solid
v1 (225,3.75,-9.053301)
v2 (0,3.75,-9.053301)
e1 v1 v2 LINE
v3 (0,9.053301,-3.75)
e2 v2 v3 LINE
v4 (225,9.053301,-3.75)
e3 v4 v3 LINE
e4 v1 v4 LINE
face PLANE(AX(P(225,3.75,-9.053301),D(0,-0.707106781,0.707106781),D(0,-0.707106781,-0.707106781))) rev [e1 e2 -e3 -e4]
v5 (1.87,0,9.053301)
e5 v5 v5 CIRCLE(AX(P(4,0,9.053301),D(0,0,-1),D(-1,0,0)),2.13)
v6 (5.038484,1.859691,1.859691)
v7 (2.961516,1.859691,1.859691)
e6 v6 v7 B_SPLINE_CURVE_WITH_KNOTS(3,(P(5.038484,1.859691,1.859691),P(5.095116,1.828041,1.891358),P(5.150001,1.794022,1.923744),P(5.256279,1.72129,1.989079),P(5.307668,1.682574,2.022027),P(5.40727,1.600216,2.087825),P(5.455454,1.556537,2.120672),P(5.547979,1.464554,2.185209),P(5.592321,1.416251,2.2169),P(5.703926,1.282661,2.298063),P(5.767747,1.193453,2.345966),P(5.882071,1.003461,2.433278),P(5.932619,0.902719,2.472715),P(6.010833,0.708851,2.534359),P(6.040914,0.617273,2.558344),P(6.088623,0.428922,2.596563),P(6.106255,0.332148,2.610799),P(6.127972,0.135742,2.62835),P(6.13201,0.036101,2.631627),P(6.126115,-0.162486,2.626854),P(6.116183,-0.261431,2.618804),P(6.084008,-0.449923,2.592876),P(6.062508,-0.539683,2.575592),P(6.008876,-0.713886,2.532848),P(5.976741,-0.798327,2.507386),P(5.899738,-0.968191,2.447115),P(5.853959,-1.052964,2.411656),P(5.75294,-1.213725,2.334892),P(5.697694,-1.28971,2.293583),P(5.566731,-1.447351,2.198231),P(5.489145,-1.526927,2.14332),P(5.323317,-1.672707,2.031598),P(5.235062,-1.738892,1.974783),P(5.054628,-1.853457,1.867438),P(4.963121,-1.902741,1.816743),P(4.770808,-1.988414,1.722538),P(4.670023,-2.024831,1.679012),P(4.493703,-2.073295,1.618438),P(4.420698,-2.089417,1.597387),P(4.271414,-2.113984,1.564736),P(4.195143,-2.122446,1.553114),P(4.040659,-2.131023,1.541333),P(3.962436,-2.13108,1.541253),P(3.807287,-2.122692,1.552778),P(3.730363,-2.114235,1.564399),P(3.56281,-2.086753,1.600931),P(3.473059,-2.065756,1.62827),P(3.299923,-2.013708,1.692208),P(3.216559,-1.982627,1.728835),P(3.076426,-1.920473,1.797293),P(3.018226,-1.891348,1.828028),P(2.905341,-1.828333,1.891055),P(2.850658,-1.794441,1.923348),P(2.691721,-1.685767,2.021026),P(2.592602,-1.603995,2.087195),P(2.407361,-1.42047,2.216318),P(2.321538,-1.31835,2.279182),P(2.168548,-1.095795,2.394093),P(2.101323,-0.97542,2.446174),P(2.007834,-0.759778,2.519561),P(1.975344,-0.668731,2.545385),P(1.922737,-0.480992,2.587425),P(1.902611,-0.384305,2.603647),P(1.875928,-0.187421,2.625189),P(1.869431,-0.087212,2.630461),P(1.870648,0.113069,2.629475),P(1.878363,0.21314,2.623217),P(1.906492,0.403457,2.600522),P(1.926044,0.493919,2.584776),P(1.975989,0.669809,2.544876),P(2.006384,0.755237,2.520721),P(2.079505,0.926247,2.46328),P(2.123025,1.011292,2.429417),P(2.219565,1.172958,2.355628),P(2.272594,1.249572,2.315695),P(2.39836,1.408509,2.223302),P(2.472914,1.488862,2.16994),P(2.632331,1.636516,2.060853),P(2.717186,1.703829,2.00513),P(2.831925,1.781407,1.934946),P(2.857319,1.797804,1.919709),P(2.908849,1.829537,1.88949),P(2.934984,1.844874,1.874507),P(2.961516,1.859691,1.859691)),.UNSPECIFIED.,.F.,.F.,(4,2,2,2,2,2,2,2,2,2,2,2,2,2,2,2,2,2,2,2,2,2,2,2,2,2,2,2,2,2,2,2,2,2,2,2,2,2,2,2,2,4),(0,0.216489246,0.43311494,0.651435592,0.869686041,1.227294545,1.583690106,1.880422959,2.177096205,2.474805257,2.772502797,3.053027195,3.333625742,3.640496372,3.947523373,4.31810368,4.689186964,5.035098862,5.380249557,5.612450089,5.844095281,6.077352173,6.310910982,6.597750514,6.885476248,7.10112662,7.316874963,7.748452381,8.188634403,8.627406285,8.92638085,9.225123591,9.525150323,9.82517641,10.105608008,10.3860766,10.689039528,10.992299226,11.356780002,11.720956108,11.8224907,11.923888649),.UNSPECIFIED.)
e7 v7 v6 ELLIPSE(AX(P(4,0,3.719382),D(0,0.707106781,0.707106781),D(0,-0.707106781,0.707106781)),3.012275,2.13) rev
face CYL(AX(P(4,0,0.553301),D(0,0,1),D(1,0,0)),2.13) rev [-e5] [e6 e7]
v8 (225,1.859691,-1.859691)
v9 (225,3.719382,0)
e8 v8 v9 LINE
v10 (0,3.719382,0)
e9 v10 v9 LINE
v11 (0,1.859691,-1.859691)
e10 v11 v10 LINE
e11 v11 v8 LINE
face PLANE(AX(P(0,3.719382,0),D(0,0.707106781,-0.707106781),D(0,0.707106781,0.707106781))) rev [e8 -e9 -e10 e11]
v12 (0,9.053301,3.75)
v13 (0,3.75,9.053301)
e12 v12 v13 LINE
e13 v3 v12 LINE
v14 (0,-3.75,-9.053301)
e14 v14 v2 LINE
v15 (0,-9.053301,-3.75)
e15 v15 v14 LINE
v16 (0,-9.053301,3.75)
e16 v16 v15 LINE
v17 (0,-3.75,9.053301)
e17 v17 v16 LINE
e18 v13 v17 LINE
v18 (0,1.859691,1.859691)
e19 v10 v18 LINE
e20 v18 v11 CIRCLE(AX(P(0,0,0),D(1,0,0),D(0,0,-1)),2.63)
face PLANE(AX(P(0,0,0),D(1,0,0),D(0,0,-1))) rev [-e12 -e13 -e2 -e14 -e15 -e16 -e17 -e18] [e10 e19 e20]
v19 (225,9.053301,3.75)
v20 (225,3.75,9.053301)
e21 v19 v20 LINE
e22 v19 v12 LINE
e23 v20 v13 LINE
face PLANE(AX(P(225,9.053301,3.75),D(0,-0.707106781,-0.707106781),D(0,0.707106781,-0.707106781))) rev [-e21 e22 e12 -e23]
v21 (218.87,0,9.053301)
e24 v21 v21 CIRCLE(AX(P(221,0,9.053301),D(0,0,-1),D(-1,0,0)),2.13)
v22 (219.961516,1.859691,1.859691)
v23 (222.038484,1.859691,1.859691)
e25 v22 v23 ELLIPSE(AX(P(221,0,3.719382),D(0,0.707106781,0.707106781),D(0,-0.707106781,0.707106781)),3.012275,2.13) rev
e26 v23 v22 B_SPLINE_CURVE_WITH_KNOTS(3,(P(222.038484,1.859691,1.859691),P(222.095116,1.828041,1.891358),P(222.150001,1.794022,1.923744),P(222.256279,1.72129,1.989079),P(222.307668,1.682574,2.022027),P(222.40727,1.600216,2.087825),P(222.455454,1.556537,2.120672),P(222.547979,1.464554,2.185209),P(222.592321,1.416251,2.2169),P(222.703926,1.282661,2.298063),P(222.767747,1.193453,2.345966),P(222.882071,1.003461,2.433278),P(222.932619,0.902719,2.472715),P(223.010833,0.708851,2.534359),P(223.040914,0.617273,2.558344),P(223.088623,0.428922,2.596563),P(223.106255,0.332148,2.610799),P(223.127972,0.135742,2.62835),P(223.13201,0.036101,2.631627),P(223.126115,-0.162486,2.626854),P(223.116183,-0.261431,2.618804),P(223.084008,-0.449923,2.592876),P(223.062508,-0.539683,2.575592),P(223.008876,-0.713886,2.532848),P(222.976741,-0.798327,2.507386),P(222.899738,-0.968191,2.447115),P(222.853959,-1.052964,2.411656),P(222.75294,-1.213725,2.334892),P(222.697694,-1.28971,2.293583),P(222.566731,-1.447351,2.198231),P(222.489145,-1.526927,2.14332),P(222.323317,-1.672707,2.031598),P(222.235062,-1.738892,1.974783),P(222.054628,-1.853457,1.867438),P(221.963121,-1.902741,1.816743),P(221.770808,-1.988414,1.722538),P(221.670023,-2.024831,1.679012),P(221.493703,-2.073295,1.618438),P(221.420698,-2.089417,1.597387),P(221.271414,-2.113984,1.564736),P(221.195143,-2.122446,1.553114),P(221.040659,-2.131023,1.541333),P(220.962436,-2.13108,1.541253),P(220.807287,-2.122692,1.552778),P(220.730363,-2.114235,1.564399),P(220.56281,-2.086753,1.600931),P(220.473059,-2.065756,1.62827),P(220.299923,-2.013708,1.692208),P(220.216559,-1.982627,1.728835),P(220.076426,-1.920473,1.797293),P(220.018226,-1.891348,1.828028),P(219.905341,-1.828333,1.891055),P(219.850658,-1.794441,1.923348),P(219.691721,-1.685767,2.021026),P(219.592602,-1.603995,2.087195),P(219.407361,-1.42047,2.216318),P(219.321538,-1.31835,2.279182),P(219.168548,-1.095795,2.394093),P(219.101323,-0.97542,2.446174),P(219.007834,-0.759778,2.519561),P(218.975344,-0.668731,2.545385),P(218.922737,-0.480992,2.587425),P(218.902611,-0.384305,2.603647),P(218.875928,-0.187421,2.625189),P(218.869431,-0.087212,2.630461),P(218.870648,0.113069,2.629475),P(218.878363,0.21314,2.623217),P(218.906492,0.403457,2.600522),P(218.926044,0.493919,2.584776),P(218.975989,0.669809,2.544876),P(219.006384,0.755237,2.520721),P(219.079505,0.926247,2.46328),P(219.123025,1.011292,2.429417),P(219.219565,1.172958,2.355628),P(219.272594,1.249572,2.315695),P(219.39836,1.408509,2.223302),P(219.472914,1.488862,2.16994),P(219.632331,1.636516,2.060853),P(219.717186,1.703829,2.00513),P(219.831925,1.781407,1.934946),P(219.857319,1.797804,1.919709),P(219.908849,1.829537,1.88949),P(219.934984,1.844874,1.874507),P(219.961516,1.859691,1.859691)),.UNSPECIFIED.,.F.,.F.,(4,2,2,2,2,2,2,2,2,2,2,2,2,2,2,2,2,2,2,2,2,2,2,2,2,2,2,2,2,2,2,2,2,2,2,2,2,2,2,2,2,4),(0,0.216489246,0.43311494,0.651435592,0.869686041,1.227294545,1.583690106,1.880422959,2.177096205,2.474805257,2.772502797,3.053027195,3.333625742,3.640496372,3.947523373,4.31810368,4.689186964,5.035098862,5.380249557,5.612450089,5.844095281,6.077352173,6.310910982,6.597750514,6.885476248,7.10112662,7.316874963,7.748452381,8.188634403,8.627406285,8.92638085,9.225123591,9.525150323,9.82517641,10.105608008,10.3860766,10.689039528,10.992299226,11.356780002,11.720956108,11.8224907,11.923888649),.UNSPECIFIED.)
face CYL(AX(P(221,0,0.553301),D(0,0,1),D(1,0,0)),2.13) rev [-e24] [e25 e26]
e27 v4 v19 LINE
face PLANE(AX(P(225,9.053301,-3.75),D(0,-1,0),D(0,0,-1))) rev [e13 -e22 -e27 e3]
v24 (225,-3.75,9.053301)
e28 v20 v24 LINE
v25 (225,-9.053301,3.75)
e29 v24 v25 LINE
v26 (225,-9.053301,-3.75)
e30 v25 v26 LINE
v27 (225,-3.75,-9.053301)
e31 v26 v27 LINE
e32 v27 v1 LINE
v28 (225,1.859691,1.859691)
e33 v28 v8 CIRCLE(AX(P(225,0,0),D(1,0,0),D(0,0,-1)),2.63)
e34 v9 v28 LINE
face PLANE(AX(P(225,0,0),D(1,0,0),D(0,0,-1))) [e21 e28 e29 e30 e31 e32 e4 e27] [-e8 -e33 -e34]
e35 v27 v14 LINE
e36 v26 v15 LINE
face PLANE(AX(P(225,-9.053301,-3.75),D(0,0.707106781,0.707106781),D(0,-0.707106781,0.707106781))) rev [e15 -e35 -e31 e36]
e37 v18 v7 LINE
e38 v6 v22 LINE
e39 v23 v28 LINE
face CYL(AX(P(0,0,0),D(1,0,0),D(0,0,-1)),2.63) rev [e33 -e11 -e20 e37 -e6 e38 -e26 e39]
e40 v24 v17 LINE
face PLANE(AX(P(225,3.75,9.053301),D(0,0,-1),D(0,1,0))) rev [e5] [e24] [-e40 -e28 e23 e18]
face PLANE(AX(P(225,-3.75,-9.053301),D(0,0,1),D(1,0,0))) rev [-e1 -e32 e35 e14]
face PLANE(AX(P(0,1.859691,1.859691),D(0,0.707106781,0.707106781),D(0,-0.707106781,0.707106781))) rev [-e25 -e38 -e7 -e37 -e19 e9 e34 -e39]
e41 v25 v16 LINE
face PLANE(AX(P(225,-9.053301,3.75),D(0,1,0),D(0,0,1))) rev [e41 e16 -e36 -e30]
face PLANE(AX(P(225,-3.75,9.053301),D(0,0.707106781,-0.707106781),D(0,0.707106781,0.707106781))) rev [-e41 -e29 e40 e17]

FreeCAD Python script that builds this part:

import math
import FreeCAD as App
import Part
import Sketcher
from FreeCAD import Vector
Q = App.Units.Quantity


def add_polygon(sketch, points):
    """Adds a closed chain of lines whose ends are joined by coincident constraints."""
    first, n = sketch.GeometryCount, len(points)
    for a, b in zip(points, points[1:] + points[:1]):
        sketch.addGeometry(Part.LineSegment(App.Vector(*a, 0), App.Vector(*b, 0)), False)
    for i in range(n):
        sketch.addConstraint(Sketcher.Constraint("Coincident", first + i, 2, first + (i + 1) % n, 1))

doc = App.newDocument("Part")
body = doc.addObject("PartDesign::Body", "Body")

# Sketch on YZ plane
sketch1 = body.newObject("Sketcher::SketchObject", "Sketch")
sketch1.AttachmentSupport = (doc.getObject("YZ_Plane"), [""])
sketch1.MapMode = "FlatFace"
add_polygon(sketch1, [(-4, -9), (4, -9), (9, -4), (9, 4), (4, 9), (-4, 9), (-9, 4), (-9, -4)])  # lines 0-7
sketch1.addConstraint([
    Sketcher.Constraint("Horizontal", 0),
    Sketcher.Constraint("Vertical", 2),
    Sketcher.Constraint("Horizontal", 4),
    Sketcher.Constraint("Vertical", 6),
    Sketcher.Constraint("Symmetric", 0, 2, 4, 2, -1, 1),
    Sketcher.Constraint("Symmetric", 1, 2, 5, 2, -1, 1),
    Sketcher.Constraint("Perpendicular", 1, 3),
    Sketcher.Constraint("Perpendicular", 5, 7),
    Sketcher.Constraint("Horizontal", 2, 2, 5, 2),
    Sketcher.Constraint("Horizontal", 1, 2, 6, 2),
    Sketcher.Constraint("Vertical", 0, 2, 3, 2),
    Sketcher.Constraint("Equal", 4, 2),
    Sketcher.Constraint("DistanceX", 0, 1, 0, 2, Q("7.5 mm")),
    Sketcher.Constraint("Distance", 1, Q("7.5 mm")),
])
pad1 = body.newObject("PartDesign::Pad", "Pad")
pad1.Profile = sketch1
pad1.Length = 225

# Sketch on YZ plane
sketch2 = body.newObject("Sketcher::SketchObject", "Sketch001")
sketch2.AttachmentSupport = (doc.getObject("YZ_Plane"), [""])
sketch2.MapMode = "FlatFace"
sketch2.AttachmentOffset = App.Placement(Vector(0, 0, 225), App.Rotation())
sketch2.addGeometry([
    Part.LineSegment(Vector(3.7, 0, 0), Vector(1.9, 1.9, 0)),
    Part.ArcOfCircle(Part.Circle(Vector(0, 0, 0), Vector(0, 0, 1), 2.6), math.radians(45), math.radians(315)),
    Part.LineSegment(Vector(1.9, -1.9, 0), Vector(3.7, 0, 0)),
], False)
sketch2.addConstraint([
    Sketcher.Constraint("Tangent", 0, 2, 1, 1),
    Sketcher.Constraint("Tangent", 1, 2, 2, 1),
    Sketcher.Constraint("Coincident", 2, 2, 0, 1),
    Sketcher.Constraint("Coincident", 1, 3, -1, 1),
    Sketcher.Constraint("PointOnObject", 2, 2, -1),
    Sketcher.Constraint("Perpendicular", 0, 2),
    Sketcher.Constraint("Radius", 1, Q("2.63 mm")),
])
pocket1 = body.newObject("PartDesign::Pocket", "Pocket")
pocket1.Profile = sketch2
pocket1.Type = "ThroughAll"

# Sketch on XY plane
sketch3 = body.newObject("Sketcher::SketchObject", "Sketch002")
sketch3.AttachmentSupport = (doc.getObject("XY_Plane"), [""])
sketch3.MapMode = "FlatFace"
sketch3.AttachmentOffset = App.Placement(Vector(0, 0, 9.053301), App.Rotation())
sketch3.addGeometry([
    Part.Circle(Vector(4, 0, 0), Vector(0, 0, 1), 2.1),
    Part.Circle(Vector(221, 0, 0), Vector(0, 0, 1), 2.1),
], False)
sketch3.addConstraint([
    Sketcher.Constraint("Equal", 0, 1),
    Sketcher.Constraint("PointOnObject", 0, 3, -1),
    Sketcher.Constraint("PointOnObject", 1, 3, -1),
    Sketcher.Constraint("Diameter", 0, Q("4.26 mm")),
    Sketcher.Constraint("DistanceX", -1, 1, 0, 3, Q("4 mm")),
    Sketcher.Constraint("DistanceX", -1, 1, 1, 3, Q("221 mm")),
])
pocket2 = body.newObject("PartDesign::Pocket", "Pocket001")
pocket2.Profile = sketch3
pocket2.Length = 8.5

doc.recompute()
